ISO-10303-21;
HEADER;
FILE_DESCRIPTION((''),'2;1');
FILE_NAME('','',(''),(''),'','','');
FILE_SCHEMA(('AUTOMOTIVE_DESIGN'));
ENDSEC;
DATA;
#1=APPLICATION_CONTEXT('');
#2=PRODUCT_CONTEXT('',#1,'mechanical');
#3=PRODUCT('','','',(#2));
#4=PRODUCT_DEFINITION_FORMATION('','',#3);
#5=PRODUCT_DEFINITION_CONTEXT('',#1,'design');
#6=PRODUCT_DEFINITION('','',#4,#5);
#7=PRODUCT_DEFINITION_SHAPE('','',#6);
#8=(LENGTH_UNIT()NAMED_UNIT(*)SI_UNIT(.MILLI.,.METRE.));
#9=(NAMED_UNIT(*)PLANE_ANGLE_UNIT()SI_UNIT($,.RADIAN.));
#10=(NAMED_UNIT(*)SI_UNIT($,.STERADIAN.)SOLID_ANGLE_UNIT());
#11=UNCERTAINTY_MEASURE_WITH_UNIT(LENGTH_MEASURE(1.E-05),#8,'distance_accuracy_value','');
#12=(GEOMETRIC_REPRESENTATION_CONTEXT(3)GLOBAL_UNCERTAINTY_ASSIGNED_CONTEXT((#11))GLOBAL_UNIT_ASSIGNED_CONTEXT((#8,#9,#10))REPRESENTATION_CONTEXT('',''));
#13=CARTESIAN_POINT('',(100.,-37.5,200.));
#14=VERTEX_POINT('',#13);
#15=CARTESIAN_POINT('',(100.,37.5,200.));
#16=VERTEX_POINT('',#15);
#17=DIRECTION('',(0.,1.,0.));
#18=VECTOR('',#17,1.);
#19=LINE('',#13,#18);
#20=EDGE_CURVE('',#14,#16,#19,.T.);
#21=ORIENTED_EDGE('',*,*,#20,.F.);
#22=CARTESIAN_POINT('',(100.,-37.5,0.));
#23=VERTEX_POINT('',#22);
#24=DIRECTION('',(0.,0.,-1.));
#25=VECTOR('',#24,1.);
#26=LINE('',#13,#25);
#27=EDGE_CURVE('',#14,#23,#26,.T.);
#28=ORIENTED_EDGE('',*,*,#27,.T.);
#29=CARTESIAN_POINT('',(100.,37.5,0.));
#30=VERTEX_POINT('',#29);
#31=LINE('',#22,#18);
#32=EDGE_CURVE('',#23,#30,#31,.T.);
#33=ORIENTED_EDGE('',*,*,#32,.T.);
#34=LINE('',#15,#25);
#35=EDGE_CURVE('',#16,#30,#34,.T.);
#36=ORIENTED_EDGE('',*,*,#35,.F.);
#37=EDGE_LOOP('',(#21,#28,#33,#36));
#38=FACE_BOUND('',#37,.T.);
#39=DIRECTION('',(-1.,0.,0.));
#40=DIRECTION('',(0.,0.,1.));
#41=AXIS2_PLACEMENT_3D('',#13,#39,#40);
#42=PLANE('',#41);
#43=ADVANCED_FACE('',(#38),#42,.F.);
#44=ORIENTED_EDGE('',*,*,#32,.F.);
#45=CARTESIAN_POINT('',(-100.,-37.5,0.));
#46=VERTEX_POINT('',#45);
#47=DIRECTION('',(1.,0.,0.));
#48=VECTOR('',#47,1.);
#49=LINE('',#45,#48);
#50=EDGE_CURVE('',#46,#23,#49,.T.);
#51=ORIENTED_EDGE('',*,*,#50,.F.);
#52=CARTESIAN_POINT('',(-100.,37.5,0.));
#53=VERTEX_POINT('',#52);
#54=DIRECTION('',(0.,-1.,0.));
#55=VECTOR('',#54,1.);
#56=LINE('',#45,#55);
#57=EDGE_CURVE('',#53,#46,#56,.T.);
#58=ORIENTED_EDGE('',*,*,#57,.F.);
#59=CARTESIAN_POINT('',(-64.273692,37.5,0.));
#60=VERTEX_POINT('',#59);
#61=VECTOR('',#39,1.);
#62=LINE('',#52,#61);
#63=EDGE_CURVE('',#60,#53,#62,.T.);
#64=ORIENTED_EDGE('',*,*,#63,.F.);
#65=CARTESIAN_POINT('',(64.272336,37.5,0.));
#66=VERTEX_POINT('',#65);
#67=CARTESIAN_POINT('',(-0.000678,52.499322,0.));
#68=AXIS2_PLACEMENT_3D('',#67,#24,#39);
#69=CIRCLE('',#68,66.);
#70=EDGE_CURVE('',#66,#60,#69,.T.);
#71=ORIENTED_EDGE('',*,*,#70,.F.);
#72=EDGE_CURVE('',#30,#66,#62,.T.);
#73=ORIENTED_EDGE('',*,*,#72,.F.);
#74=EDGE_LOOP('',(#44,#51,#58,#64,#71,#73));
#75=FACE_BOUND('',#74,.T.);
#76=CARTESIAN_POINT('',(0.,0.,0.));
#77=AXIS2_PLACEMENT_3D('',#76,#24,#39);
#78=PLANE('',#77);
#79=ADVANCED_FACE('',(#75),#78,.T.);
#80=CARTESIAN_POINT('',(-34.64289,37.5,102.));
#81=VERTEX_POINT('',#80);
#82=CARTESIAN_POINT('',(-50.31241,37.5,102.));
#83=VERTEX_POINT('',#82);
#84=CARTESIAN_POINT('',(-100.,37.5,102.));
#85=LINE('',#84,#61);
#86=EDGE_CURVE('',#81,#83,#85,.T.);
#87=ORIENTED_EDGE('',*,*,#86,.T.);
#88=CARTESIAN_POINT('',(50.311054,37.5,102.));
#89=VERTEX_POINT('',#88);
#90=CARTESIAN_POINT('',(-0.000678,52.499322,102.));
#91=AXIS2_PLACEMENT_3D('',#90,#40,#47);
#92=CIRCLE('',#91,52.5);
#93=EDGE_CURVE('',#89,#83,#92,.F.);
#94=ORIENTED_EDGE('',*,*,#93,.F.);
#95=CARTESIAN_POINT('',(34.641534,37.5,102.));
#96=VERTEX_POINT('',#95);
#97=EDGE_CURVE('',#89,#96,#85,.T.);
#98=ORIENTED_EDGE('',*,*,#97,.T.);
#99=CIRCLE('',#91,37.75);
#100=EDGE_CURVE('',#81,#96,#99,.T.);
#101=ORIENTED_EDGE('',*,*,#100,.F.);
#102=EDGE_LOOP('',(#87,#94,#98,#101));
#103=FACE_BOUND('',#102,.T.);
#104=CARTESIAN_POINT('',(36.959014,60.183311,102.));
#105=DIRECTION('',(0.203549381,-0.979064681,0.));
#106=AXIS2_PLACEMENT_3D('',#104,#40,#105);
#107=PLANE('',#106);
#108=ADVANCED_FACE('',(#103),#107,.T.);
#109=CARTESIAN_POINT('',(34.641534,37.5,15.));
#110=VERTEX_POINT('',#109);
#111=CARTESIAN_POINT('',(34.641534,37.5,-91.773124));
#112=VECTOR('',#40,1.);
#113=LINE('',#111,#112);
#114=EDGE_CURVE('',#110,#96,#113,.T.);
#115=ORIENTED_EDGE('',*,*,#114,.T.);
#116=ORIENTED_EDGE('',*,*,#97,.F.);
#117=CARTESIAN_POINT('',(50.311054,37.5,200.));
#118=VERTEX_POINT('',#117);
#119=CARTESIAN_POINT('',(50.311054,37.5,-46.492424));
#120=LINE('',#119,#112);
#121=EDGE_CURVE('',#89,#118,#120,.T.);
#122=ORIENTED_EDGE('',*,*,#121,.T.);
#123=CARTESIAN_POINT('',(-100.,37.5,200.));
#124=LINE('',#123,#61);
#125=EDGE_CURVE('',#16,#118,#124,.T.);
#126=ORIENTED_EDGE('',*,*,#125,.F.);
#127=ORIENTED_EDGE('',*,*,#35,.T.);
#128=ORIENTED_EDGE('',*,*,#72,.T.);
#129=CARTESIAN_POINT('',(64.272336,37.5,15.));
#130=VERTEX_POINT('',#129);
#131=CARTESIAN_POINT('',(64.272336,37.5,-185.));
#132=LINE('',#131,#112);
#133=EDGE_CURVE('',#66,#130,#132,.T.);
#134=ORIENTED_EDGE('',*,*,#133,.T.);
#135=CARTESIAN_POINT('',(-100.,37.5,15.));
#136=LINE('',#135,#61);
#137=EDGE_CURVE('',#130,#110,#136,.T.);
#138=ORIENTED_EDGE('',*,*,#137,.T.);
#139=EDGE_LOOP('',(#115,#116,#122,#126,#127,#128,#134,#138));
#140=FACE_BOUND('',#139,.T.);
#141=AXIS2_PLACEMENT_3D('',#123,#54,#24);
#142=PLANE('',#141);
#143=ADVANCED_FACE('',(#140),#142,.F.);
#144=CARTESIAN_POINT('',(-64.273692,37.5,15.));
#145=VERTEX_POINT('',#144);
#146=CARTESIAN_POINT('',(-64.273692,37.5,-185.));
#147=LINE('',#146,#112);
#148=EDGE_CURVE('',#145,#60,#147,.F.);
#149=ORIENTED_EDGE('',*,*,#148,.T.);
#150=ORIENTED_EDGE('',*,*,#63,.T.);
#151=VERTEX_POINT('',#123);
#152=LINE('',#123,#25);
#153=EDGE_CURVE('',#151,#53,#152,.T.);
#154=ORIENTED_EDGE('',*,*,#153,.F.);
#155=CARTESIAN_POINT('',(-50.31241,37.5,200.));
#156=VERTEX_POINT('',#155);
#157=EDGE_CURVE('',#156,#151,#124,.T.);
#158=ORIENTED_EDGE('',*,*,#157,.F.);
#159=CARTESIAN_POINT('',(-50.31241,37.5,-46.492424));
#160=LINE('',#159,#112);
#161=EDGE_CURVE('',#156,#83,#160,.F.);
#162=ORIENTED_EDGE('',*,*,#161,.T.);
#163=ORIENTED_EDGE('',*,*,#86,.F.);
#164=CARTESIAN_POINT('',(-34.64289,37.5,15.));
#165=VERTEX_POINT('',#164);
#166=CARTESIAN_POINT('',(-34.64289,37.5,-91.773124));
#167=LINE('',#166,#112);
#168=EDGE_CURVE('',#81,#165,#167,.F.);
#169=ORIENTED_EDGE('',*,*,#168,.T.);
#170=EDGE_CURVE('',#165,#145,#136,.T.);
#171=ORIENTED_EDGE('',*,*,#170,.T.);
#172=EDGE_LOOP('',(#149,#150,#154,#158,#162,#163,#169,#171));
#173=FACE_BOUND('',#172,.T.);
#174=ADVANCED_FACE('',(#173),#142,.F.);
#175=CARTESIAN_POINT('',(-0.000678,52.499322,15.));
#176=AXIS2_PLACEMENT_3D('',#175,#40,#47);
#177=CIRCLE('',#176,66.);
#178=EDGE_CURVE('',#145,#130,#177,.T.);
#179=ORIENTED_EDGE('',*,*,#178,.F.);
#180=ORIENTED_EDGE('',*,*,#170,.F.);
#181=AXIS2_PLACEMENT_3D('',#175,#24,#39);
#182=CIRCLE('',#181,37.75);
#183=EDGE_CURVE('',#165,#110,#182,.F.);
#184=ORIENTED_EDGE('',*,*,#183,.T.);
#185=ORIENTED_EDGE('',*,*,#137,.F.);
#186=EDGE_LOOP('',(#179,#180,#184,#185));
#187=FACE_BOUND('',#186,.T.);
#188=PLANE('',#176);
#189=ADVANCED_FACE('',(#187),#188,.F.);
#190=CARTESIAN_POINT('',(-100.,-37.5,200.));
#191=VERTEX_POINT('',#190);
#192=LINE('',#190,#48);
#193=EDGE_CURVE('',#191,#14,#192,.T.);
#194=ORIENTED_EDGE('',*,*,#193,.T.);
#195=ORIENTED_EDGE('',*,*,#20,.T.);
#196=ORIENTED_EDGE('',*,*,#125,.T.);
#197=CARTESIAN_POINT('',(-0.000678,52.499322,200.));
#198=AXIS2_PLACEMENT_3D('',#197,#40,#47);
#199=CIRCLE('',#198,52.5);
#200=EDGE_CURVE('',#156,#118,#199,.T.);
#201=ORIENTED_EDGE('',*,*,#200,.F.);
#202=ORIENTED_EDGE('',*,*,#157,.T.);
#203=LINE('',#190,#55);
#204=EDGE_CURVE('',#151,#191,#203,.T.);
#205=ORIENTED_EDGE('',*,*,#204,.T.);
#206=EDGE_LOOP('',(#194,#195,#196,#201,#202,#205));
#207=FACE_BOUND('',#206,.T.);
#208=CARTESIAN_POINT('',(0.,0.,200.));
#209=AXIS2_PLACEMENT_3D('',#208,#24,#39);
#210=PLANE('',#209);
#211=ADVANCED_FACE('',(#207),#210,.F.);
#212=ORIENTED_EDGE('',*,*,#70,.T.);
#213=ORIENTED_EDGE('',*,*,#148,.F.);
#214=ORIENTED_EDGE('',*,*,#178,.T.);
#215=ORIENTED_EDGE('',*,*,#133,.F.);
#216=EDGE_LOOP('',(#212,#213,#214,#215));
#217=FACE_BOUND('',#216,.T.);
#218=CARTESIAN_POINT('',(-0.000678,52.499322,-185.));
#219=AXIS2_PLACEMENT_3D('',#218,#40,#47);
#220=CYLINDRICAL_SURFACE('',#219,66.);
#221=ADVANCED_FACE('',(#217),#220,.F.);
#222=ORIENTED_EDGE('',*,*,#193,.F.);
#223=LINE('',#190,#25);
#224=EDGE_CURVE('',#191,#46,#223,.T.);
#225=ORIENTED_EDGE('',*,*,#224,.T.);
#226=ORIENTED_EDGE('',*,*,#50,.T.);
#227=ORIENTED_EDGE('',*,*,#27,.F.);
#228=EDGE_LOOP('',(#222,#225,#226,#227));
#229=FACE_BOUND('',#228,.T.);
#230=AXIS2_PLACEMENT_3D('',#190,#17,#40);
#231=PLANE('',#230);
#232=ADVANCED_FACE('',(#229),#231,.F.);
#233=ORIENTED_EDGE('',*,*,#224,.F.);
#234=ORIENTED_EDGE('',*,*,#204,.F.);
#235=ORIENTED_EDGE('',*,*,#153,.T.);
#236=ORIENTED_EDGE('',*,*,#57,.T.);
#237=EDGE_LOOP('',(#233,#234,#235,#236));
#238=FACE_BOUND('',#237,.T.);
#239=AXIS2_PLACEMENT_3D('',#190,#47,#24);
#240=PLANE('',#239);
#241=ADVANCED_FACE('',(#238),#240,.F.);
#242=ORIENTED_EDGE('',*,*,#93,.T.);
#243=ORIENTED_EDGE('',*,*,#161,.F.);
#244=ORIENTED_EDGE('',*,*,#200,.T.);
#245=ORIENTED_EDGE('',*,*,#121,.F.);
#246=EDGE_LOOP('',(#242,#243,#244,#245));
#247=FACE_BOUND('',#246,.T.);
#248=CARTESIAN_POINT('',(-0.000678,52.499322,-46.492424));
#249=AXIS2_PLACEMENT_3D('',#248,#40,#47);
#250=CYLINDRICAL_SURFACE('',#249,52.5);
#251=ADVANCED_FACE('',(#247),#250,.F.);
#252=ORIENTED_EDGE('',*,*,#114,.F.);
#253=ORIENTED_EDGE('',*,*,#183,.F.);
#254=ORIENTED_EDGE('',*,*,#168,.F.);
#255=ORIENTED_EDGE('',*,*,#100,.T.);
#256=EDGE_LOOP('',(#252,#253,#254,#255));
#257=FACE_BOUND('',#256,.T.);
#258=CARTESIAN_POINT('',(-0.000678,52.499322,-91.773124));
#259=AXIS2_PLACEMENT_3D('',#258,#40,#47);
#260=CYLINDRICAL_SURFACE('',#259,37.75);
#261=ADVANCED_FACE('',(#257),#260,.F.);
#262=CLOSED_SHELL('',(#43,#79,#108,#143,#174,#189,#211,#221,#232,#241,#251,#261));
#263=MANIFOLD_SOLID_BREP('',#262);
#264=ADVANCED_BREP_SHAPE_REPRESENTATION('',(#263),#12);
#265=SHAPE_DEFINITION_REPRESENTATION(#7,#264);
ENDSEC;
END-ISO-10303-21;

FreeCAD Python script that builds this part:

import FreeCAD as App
import Part
import Sketcher
from FreeCAD import Vector


def add_polygon(sketch, points):
    """Adds a closed chain of lines whose ends are joined by coincident constraints."""
    first, n = sketch.GeometryCount, len(points)
    for a, b in zip(points, points[1:] + points[:1]):
        sketch.addGeometry(Part.LineSegment(App.Vector(*a, 0), App.Vector(*b, 0)), False)
    for i in range(n):
        sketch.addConstraint(Sketcher.Constraint("Coincident", first + i, 2, first + (i + 1) % n, 1))

doc = App.newDocument("Part")
params = doc.addObject("Spreadsheet::Sheet", "Params")
for row, (alias, value) in enumerate([
    ("sketch1_width", "200 mm"),
    ("sketch1_height", "75 mm"),
    ("pad1_length", "200 mm"),
    ("sketch2_diameter", "105 mm"),
    ("pocket1_length", "98 mm"),
    ("sketch3_diameter", "75.5 mm"),
    ("pocket2_length", "87 mm"),
    ("sketch4_diameter", "132 mm"),
    ("pocket3_length", "200 mm"),
], start=1):
    params.set(f"A{row}", alias)
    params.set(f"B{row}", "=" + value)
    params.setAlias(f"B{row}", alias)

body = doc.addObject("PartDesign::Body", "Body")

# Sketch on XY plane
sketch1 = body.newObject("Sketcher::SketchObject", "Sketch")
sketch1.AttachmentSupport = (doc.getObject("XY_Plane"), [""])
sketch1.MapMode = "FlatFace"
add_polygon(sketch1, [(-100, 37.5), (-100, -37.5), (100, -37.5), (100, 37.5)])  # lines 0-3
sketch1.addConstraint([
    Sketcher.Constraint("Vertical", 0),
    Sketcher.Constraint("Horizontal", 1),
    Sketcher.Constraint("Vertical", 2),
    Sketcher.Constraint("Horizontal", 3),
    Sketcher.Constraint("Symmetric", 0, 2, 2, 2, -1, 1),
    Sketcher.Constraint("DistanceX", 1, 1, 1, 2, 200.0),
    Sketcher.Constraint("DistanceY", 0, 2, 0, 1, 75.0),
])
sketch1.setExpression("Constraints[9]", "Params.sketch1_width")
sketch1.setExpression("Constraints[10]", "Params.sketch1_height")
pad1 = body.newObject("PartDesign::Pad", "Pad")
pad1.Profile = sketch1
pad1.setExpression("Length", "Params.pad1_length")

# Sketch on XY plane
sketch2 = body.newObject("Sketcher::SketchObject", "Sketch001")
sketch2.AttachmentSupport = (doc.getObject("XY_Plane"), [""])
sketch2.MapMode = "FlatFace"
sketch2.AttachmentOffset = App.Placement(Vector(0, 0, 102), App.Rotation())
sketch2.addGeometry(Part.Circle(Vector(-0.000678, 52.499322, 0), Vector(0, 0, 1), 52.5), False)
sketch2.addConstraint([
    Sketcher.Constraint("Diameter", 0, 105.0),
    Sketcher.Constraint("DistanceX", 0, 3, -1, 1, 0.000678),
    Sketcher.Constraint("DistanceY", -1, 1, 0, 3, 52.499322),
])
sketch2.setExpression("Constraints[0]", "Params.sketch2_diameter")
pocket1 = body.newObject("PartDesign::Pocket", "Pocket")
pocket1.Profile = sketch2
pocket1.setExpression("Length", "Params.pocket1_length")
pocket1.Reversed = True

# Sketch on XY plane
sketch3 = body.newObject("Sketcher::SketchObject", "Sketch002")
sketch3.AttachmentSupport = (doc.getObject("XY_Plane"), [""])
sketch3.MapMode = "FlatFace"
sketch3.AttachmentOffset = App.Placement(Vector(0, 0, 15), App.Rotation())
sketch3.addGeometry(Part.Circle(Vector(-0.000678, 52.499322, 0), Vector(0, 0, 1), 37.75), False)
sketch3.addConstraint([
    Sketcher.Constraint("Diameter", 0, 75.5),
    Sketcher.Constraint("DistanceX", 0, 3, -1, 1, 0.000678),
    Sketcher.Constraint("DistanceY", -1, 1, 0, 3, 52.499322),
])
sketch3.setExpression("Constraints[0]", "Params.sketch3_diameter")
pocket2 = body.newObject("PartDesign::Pocket", "Pocket001")
pocket2.Profile = sketch3
pocket2.setExpression("Length", "Params.pocket2_length")
pocket2.Reversed = True

# Sketch on XY plane
sketch4 = body.newObject("Sketcher::SketchObject", "Sketch003")
sketch4.AttachmentSupport = (doc.getObject("XY_Plane"), [""])
sketch4.MapMode = "FlatFace"
sketch4.AttachmentOffset = App.Placement(Vector(0, 0, 15), App.Rotation())
sketch4.addGeometry(Part.Circle(Vector(-0.000678, 52.499322, 0), Vector(0, 0, 1), 66), False)
sketch4.addConstraint([
    Sketcher.Constraint("Diameter", 0, 132.0),
    Sketcher.Constraint("DistanceX", 0, 3, -1, 1, 0.000678),
    Sketcher.Constraint("DistanceY", -1, 1, 0, 3, 52.499322),
])
sketch4.setExpression("Constraints[0]", "Params.sketch4_diameter")
pocket3 = body.newObject("PartDesign::Pocket", "Pocket002")
pocket3.Profile = sketch4
pocket3.setExpression("Length", "Params.pocket3_length")

doc.recompute()
